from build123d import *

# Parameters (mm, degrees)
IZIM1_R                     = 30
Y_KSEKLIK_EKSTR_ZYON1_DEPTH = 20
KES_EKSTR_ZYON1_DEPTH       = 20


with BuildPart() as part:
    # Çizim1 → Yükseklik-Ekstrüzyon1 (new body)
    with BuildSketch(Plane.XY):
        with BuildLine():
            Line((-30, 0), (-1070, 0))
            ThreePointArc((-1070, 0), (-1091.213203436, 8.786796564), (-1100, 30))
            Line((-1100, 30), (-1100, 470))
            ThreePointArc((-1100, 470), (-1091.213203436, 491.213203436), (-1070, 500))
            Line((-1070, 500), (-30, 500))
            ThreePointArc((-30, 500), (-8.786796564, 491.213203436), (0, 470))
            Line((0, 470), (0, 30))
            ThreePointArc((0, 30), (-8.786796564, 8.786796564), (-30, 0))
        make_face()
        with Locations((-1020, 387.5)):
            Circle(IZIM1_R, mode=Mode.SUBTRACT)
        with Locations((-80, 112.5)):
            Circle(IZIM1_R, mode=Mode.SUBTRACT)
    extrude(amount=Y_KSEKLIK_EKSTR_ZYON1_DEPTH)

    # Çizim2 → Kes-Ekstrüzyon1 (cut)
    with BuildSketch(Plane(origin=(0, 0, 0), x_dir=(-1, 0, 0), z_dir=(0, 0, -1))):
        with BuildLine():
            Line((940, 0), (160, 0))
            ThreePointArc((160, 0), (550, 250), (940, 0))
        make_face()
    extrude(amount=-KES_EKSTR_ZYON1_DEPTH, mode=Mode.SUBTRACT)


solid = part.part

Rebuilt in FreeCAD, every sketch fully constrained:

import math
import FreeCAD as App
import Part
import Sketcher
from FreeCAD import Vector

doc = App.newDocument("Part")
params = doc.addObject("Spreadsheet::Sheet", "Params")
for row, (alias, value) in enumerate([
    ("sketch1_diameter", "60 mm"),
    ("sketch1_width", "1040 mm"),
    ("sketch1_height", "440 mm"),
    ("pad1_length", "20 mm"),
    ("sketch2_radius", "429.2 mm"),
    ("sketch2_width", "780 mm"),
    ("pocket1_length", "20 mm"),
], start=1):
    params.set(f"A{row}", alias)
    params.set(f"B{row}", "=" + value)
    params.setAlias(f"B{row}", alias)

body = doc.addObject("PartDesign::Body", "Body")

sketch1 = body.newObject("Sketcher::SketchObject", "Sketch")
sketch1.AttachmentSupport = (doc.getObject("XY_Plane"), [""])
sketch1.MapMode = "FlatFace"
sketch1.addGeometry(Part.LineSegment(Vector(-1070, 0, 0), Vector(-30, 0, 0)), False)
sketch1.addGeometry(Part.ArcOfCircle(Part.Circle(Vector(-30, 30, 0), Vector(0, 0, 1), 30), math.radians(-90), math.radians(0)), False)
sketch1.addGeometry(Part.LineSegment(Vector(0, 30, 0), Vector(0, 470, 0)), False)
sketch1.addGeometry(Part.ArcOfCircle(Part.Circle(Vector(-30, 470, 0), Vector(0, 0, 1), 30), math.radians(0), math.radians(90)), False)
sketch1.addGeometry(Part.LineSegment(Vector(-30, 500, 0), Vector(-1070, 500, 0)), False)
sketch1.addGeometry(Part.ArcOfCircle(Part.Circle(Vector(-1070, 470, 0), Vector(0, 0, 1), 30), math.radians(90), math.radians(180)), False)
sketch1.addGeometry(Part.LineSegment(Vector(-1100, 470, 0), Vector(-1100, 30, 0)), False)
sketch1.addGeometry(Part.ArcOfCircle(Part.Circle(Vector(-1070, 30, 0), Vector(0, 0, 1), 30), math.radians(180), math.radians(270)), False)
sketch1.addGeometry(Part.Circle(Vector(-80, 112.5, 0), Vector(0, 0, 1), 30), False)
sketch1.addGeometry(Part.Circle(Vector(-1020, 387.5, 0), Vector(0, 0, 1), 30), False)
sketch1.addConstraint(Sketcher.Constraint("Tangent", 0, 2, 1, 1))
sketch1.addConstraint(Sketcher.Constraint("Tangent", 1, 2, 2, 1))
sketch1.addConstraint(Sketcher.Constraint("Tangent", 2, 2, 3, 1))
sketch1.addConstraint(Sketcher.Constraint("Tangent", 3, 2, 4, 1))
sketch1.addConstraint(Sketcher.Constraint("Tangent", 4, 2, 5, 1))
sketch1.addConstraint(Sketcher.Constraint("Tangent", 5, 2, 6, 1))
sketch1.addConstraint(Sketcher.Constraint("Tangent", 6, 2, 7, 1))
sketch1.addConstraint(Sketcher.Constraint("Tangent", 7, 2, 0, 1))
sketch1.addConstraint(Sketcher.Constraint("Horizontal", 0))
sketch1.addConstraint(Sketcher.Constraint("Vertical", 2))
sketch1.addConstraint(Sketcher.Constraint("Horizontal", 4))
sketch1.addConstraint(Sketcher.Constraint("Vertical", 6))
sketch1.addConstraint(Sketcher.Constraint("Equal", 1, 3))
sketch1.addConstraint(Sketcher.Constraint("Equal", 3, 5))
sketch1.addConstraint(Sketcher.Constraint("Equal", 5, 7))
sketch1.addConstraint(Sketcher.Constraint("Equal", 7, 8))
sketch1.addConstraint(Sketcher.Constraint("Equal", 8, 9))
sketch1.addConstraint(Sketcher.Constraint("PointOnObject", 0, 2, -1))
sketch1.addConstraint(Sketcher.Constraint("PointOnObject", 1, 2, -2))
sketch1.addConstraint(Sketcher.Constraint("Diameter", 8, 60.0))
sketch1.addConstraint(Sketcher.Constraint("DistanceX", 0, 1, 0, 2, 1040.0))
sketch1.addConstraint(Sketcher.Constraint("DistanceY", 2, 1, 2, 2, 440.0))
sketch1.addConstraint(Sketcher.Constraint("DistanceX", 8, 3, -1, 1, 80.0))
sketch1.addConstraint(Sketcher.Constraint("DistanceX", 9, 3, -1, 1, 1020.0))
sketch1.addConstraint(Sketcher.Constraint("DistanceY", 8, 3, 9, 3, 275.0))
sketch1.addConstraint(Sketcher.Constraint("DistanceY", -1, 1, 8, 3, 112.5))
sketch1.setExpression("Constraints[19]", "Params.sketch1_diameter")
sketch1.setExpression("Constraints[20]", "Params.sketch1_width")
sketch1.setExpression("Constraints[21]", "Params.sketch1_height")
pad1 = body.newObject("PartDesign::Pad", "Pad")
pad1.Profile = sketch1
pad1.setExpression("Length", "Params.pad1_length")

sketch2 = body.newObject("Sketcher::SketchObject", "Sketch001")
sketch2.AttachmentSupport = (doc.getObject("XY_Plane"), [""])
sketch2.MapMode = "FlatFace"
sketch2.addGeometry(Part.LineSegment(Vector(-160, 0, 0), Vector(-940, 0, 0)), False)
sketch2.addGeometry(Part.ArcOfCircle(Part.Circle(Vector(-550, -179.2, 0), Vector(0, 0, 1), 429.2), math.radians(24.678175), math.radians(155.321825)), False)
sketch2.addConstraint(Sketcher.Constraint("Coincident", 0, 1, 1, 1))
sketch2.addConstraint(Sketcher.Constraint("Coincident", 1, 2, 0, 2))
sketch2.addConstraint(Sketcher.Constraint("Horizontal", 0))
sketch2.addConstraint(Sketcher.Constraint("PointOnObject", 0, 1, -1))
sketch2.addConstraint(Sketcher.Constraint("Radius", 1, 429.2))
sketch2.addConstraint(Sketcher.Constraint("DistanceX", 0, 2, 0, 1, 780.0))
sketch2.addConstraint(Sketcher.Constraint("DistanceX", 1, 3, -1, 1, 550.0))
sketch2.setExpression("Constraints[4]", "Params.sketch2_radius")
sketch2.setExpression("Constraints[5]", "Params.sketch2_width")
pocket1 = body.newObject("PartDesign::Pocket", "Pocket")
pocket1.Profile = sketch2
pocket1.setExpression("Length", "Params.pocket1_length")
pocket1.Reversed = True

doc.recompute()
